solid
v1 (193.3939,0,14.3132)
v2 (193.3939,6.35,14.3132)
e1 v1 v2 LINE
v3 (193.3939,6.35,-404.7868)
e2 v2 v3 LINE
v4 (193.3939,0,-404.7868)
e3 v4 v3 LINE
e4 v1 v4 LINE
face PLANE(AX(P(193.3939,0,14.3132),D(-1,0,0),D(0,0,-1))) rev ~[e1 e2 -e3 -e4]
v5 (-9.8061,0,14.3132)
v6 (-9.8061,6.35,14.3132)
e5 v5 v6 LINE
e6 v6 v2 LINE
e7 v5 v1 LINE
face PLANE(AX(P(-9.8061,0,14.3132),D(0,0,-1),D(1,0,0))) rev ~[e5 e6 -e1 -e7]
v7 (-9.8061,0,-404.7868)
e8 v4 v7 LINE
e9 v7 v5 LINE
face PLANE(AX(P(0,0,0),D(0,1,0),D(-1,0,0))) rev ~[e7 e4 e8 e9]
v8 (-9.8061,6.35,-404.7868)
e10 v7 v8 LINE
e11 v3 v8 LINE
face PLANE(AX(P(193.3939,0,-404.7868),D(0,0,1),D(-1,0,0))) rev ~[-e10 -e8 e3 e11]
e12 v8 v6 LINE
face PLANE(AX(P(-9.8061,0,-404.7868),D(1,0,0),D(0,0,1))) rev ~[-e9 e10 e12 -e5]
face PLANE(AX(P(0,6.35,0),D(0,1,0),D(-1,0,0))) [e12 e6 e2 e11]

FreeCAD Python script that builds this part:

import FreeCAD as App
import Part
import Sketcher

V = App.Vector
Q = App.Units.Quantity

doc = App.newDocument("Part")
body = doc.addObject("PartDesign::Body", "Body")

# Sketch on XZ plane
sketch1 = body.newObject("Sketcher::SketchObject", "Sketch")
sketch1.AttachmentSupport = (doc.getObject("XZ_Plane"), [""])
sketch1.MapMode = "FlatFace"
sketch1.addGeometry([
    Part.LineSegment(V(-10, -405, 0), V(-10, 14, 0)),
    Part.LineSegment(V(-10, 14, 0), V(193, 14, 0)),
    Part.LineSegment(V(193, 14, 0), V(193, -405, 0)),
    Part.LineSegment(V(193, -405, 0), V(-10, -405, 0)),
], False)
sketch1.addConstraint([
    Sketcher.Constraint("Coincident", 0, 2, 1, 1),
    Sketcher.Constraint("Coincident", 1, 2, 2, 1),
    Sketcher.Constraint("Coincident", 2, 2, 3, 1),
    Sketcher.Constraint("Coincident", 3, 2, 0, 1),
    Sketcher.Constraint("Vertical", 0),
    Sketcher.Constraint("Horizontal", 1),
    Sketcher.Constraint("Vertical", 2),
    Sketcher.Constraint("Horizontal", 3),
    Sketcher.Constraint("DistanceX", 1, 1, 1, 2, Q("8 in")),
    Sketcher.Constraint("DistanceY", 0, 1, 0, 2, Q("16.5 in")),
    Sketcher.Constraint("DistanceY", -1, 1, 0, 2, Q("0.5635 in")),
    Sketcher.Constraint("DistanceX", 0, 2, -1, 1, Q("9.806 mm")),
])
pad1 = body.newObject("PartDesign::Pad", "Pad")
pad1.Profile = sketch1
pad1.Length = Q("0.25 in")
pad1.Reversed = True

doc.recompute()
